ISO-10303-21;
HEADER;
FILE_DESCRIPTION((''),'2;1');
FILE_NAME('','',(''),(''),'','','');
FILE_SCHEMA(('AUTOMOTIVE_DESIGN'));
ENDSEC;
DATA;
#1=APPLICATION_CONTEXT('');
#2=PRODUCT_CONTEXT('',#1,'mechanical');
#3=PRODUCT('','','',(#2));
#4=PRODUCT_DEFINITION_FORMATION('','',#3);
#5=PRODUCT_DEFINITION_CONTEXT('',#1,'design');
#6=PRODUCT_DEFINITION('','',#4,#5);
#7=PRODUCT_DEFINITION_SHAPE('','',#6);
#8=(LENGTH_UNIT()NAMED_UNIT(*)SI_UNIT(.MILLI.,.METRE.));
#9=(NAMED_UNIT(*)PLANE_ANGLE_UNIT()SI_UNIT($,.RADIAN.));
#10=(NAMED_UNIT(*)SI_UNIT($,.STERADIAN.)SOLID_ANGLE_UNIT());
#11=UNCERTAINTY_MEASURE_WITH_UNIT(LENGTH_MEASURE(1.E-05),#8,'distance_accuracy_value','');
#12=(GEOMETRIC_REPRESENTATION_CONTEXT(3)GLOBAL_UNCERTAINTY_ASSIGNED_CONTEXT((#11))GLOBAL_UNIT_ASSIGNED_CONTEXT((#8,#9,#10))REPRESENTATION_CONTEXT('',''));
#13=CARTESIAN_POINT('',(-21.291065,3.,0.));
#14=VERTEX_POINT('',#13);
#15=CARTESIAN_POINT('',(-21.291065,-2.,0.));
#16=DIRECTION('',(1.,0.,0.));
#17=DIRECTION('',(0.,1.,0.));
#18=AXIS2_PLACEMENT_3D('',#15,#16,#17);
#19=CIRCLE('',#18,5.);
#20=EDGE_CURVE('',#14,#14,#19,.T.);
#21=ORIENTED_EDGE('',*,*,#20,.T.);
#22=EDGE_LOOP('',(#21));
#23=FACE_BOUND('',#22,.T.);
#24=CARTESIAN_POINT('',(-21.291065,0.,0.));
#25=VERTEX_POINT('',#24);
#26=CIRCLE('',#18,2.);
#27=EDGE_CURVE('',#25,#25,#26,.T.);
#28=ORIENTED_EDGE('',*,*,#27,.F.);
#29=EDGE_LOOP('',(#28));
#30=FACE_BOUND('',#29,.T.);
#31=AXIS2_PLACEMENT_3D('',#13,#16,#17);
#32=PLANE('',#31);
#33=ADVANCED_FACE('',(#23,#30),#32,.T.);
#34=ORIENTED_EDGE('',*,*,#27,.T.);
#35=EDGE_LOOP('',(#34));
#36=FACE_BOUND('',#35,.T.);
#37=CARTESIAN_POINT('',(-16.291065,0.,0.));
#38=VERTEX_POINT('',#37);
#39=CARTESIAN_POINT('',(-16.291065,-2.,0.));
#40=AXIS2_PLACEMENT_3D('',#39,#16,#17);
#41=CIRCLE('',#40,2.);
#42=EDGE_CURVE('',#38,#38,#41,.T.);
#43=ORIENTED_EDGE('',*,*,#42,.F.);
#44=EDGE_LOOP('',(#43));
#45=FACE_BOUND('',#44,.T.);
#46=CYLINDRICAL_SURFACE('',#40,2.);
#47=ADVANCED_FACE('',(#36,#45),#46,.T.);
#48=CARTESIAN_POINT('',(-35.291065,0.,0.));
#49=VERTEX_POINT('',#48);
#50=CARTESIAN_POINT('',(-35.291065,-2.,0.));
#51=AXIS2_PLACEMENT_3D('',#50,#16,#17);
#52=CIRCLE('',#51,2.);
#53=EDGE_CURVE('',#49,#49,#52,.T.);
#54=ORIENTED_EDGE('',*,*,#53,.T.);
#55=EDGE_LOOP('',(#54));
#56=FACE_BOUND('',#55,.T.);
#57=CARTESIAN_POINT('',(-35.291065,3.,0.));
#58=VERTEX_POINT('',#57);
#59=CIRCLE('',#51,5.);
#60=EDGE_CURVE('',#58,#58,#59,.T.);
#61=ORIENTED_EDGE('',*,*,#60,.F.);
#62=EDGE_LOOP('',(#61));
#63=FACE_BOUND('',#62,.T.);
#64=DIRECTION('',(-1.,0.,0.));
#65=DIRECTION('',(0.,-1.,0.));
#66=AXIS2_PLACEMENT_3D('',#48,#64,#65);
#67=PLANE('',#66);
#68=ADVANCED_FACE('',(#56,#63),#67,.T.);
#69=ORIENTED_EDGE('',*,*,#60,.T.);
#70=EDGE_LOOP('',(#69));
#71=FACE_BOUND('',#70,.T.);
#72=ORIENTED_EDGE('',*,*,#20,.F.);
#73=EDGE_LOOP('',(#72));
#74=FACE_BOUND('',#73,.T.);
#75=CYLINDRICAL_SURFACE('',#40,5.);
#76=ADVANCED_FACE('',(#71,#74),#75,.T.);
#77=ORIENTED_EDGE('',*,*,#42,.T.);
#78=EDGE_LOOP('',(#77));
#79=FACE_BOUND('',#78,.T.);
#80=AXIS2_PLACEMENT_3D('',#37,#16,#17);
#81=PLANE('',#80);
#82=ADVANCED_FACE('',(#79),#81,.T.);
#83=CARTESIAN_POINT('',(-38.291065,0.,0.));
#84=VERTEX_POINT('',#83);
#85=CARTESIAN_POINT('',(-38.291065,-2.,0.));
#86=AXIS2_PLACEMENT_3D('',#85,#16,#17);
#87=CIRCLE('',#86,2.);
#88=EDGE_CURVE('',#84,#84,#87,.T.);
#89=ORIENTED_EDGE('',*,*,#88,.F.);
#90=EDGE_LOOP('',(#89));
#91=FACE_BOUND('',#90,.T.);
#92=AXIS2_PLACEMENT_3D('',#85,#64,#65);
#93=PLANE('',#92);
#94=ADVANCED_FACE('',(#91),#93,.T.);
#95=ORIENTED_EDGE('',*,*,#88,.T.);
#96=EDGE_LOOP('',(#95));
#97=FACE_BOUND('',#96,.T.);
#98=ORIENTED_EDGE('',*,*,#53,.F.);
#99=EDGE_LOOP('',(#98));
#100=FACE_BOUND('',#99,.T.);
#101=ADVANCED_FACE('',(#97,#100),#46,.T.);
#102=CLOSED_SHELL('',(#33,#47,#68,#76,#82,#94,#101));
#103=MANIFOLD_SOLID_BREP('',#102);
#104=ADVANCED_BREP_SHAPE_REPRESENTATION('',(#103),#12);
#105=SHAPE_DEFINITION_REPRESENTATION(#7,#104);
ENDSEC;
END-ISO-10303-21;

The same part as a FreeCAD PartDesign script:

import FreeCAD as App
import Part
import Sketcher
from FreeCAD import Vector

doc = App.newDocument("Part")
body = doc.addObject("PartDesign::Body", "Body")

sketch1 = doc.addObject("Sketcher::SketchObject", "Sketch")
body.addObject(sketch1)
sketch1.AttachmentSupport = (doc.XY_Plane, [""])
sketch1.MapMode = "FlatFace"
sketch1.addGeometry(Part.LineSegment(Vector(-35.3, 0, 0), Vector(-38.3, 0, 0)), False)
sketch1.addGeometry(Part.LineSegment(Vector(-38.3, 0, 0), Vector(-38.3, -2, 0)), False)
sketch1.addGeometry(Part.LineSegment(Vector(-38.3, -2, 0), Vector(-16.3, -2, 0)), False)
sketch1.addGeometry(Part.LineSegment(Vector(-16.3, -2, 0), Vector(-16.3, 0, 0)), False)
sketch1.addGeometry(Part.LineSegment(Vector(-16.3, 0, 0), Vector(-21.3, 0, 0)), False)
sketch1.addGeometry(Part.LineSegment(Vector(-21.3, 0, 0), Vector(-21.3, 3, 0)), False)
sketch1.addGeometry(Part.LineSegment(Vector(-21.3, 3, 0), Vector(-35.3, 3, 0)), False)
sketch1.addGeometry(Part.LineSegment(Vector(-35.3, 3, 0), Vector(-35.3, 0, 0)), False)
sketch1.addGeometry(Part.LineSegment(Vector(-16.3, -2, 0), Vector(-38.3, -2, 0)), True)
sketch1.addConstraint(Sketcher.Constraint("Coincident", 0, 2, 1, 1))
sketch1.addConstraint(Sketcher.Constraint("Coincident", 1, 2, 2, 1))
sketch1.addConstraint(Sketcher.Constraint("Coincident", 2, 2, 3, 1))
sketch1.addConstraint(Sketcher.Constraint("Coincident", 3, 2, 4, 1))
sketch1.addConstraint(Sketcher.Constraint("Coincident", 4, 2, 5, 1))
sketch1.addConstraint(Sketcher.Constraint("Coincident", 5, 2, 6, 1))
sketch1.addConstraint(Sketcher.Constraint("Coincident", 6, 2, 7, 1))
sketch1.addConstraint(Sketcher.Constraint("Coincident", 7, 2, 0, 1))
sketch1.addConstraint(Sketcher.Constraint("Horizontal", 0))
sketch1.addConstraint(Sketcher.Constraint("Vertical", 1))
sketch1.addConstraint(Sketcher.Constraint("Horizontal", 2))
sketch1.addConstraint(Sketcher.Constraint("Vertical", 3))
sketch1.addConstraint(Sketcher.Constraint("Horizontal", 4))
sketch1.addConstraint(Sketcher.Constraint("Vertical", 5))
sketch1.addConstraint(Sketcher.Constraint("Horizontal", 6))
sketch1.addConstraint(Sketcher.Constraint("Vertical", 7))
sketch1.addConstraint(Sketcher.Constraint("Horizontal", 8))
sketch1.addConstraint(Sketcher.Constraint("Coincident", 8, 1, 2, 2))
sketch1.addConstraint(Sketcher.Constraint("PointOnObject", 0, 2, -1))
sketch1.addConstraint(Sketcher.Constraint("PointOnObject", 3, 2, -1))
sketch1.addConstraint(Sketcher.Constraint("Vertical", 0, 2, 8, 2))
sketch1.addConstraint(Sketcher.Constraint("Equal", 0, 5))
sketch1.addConstraint(Sketcher.Constraint("DistanceX", 0, 2, 0, 1, 3.0))
sketch1.addConstraint(Sketcher.Constraint("DistanceX", 2, 1, 2, 2, 22.0))
sketch1.addConstraint(Sketcher.Constraint("DistanceX", 4, 2, 4, 1, 5.0))
sketch1.addConstraint(Sketcher.Constraint("DistanceY", 1, 2, 1, 1, 2.0))
sketch1.addConstraint(Sketcher.Constraint("DistanceX", 0, 2, -1, 1, 38.291065))
revolution = doc.addObject("PartDesign::Revolution", "Revolution")
body.addObject(revolution)
revolution.Profile = sketch1
revolution.ReferenceAxis = (sketch1, ["Axis0"])
revolution.Angle = 360

doc.recompute()
